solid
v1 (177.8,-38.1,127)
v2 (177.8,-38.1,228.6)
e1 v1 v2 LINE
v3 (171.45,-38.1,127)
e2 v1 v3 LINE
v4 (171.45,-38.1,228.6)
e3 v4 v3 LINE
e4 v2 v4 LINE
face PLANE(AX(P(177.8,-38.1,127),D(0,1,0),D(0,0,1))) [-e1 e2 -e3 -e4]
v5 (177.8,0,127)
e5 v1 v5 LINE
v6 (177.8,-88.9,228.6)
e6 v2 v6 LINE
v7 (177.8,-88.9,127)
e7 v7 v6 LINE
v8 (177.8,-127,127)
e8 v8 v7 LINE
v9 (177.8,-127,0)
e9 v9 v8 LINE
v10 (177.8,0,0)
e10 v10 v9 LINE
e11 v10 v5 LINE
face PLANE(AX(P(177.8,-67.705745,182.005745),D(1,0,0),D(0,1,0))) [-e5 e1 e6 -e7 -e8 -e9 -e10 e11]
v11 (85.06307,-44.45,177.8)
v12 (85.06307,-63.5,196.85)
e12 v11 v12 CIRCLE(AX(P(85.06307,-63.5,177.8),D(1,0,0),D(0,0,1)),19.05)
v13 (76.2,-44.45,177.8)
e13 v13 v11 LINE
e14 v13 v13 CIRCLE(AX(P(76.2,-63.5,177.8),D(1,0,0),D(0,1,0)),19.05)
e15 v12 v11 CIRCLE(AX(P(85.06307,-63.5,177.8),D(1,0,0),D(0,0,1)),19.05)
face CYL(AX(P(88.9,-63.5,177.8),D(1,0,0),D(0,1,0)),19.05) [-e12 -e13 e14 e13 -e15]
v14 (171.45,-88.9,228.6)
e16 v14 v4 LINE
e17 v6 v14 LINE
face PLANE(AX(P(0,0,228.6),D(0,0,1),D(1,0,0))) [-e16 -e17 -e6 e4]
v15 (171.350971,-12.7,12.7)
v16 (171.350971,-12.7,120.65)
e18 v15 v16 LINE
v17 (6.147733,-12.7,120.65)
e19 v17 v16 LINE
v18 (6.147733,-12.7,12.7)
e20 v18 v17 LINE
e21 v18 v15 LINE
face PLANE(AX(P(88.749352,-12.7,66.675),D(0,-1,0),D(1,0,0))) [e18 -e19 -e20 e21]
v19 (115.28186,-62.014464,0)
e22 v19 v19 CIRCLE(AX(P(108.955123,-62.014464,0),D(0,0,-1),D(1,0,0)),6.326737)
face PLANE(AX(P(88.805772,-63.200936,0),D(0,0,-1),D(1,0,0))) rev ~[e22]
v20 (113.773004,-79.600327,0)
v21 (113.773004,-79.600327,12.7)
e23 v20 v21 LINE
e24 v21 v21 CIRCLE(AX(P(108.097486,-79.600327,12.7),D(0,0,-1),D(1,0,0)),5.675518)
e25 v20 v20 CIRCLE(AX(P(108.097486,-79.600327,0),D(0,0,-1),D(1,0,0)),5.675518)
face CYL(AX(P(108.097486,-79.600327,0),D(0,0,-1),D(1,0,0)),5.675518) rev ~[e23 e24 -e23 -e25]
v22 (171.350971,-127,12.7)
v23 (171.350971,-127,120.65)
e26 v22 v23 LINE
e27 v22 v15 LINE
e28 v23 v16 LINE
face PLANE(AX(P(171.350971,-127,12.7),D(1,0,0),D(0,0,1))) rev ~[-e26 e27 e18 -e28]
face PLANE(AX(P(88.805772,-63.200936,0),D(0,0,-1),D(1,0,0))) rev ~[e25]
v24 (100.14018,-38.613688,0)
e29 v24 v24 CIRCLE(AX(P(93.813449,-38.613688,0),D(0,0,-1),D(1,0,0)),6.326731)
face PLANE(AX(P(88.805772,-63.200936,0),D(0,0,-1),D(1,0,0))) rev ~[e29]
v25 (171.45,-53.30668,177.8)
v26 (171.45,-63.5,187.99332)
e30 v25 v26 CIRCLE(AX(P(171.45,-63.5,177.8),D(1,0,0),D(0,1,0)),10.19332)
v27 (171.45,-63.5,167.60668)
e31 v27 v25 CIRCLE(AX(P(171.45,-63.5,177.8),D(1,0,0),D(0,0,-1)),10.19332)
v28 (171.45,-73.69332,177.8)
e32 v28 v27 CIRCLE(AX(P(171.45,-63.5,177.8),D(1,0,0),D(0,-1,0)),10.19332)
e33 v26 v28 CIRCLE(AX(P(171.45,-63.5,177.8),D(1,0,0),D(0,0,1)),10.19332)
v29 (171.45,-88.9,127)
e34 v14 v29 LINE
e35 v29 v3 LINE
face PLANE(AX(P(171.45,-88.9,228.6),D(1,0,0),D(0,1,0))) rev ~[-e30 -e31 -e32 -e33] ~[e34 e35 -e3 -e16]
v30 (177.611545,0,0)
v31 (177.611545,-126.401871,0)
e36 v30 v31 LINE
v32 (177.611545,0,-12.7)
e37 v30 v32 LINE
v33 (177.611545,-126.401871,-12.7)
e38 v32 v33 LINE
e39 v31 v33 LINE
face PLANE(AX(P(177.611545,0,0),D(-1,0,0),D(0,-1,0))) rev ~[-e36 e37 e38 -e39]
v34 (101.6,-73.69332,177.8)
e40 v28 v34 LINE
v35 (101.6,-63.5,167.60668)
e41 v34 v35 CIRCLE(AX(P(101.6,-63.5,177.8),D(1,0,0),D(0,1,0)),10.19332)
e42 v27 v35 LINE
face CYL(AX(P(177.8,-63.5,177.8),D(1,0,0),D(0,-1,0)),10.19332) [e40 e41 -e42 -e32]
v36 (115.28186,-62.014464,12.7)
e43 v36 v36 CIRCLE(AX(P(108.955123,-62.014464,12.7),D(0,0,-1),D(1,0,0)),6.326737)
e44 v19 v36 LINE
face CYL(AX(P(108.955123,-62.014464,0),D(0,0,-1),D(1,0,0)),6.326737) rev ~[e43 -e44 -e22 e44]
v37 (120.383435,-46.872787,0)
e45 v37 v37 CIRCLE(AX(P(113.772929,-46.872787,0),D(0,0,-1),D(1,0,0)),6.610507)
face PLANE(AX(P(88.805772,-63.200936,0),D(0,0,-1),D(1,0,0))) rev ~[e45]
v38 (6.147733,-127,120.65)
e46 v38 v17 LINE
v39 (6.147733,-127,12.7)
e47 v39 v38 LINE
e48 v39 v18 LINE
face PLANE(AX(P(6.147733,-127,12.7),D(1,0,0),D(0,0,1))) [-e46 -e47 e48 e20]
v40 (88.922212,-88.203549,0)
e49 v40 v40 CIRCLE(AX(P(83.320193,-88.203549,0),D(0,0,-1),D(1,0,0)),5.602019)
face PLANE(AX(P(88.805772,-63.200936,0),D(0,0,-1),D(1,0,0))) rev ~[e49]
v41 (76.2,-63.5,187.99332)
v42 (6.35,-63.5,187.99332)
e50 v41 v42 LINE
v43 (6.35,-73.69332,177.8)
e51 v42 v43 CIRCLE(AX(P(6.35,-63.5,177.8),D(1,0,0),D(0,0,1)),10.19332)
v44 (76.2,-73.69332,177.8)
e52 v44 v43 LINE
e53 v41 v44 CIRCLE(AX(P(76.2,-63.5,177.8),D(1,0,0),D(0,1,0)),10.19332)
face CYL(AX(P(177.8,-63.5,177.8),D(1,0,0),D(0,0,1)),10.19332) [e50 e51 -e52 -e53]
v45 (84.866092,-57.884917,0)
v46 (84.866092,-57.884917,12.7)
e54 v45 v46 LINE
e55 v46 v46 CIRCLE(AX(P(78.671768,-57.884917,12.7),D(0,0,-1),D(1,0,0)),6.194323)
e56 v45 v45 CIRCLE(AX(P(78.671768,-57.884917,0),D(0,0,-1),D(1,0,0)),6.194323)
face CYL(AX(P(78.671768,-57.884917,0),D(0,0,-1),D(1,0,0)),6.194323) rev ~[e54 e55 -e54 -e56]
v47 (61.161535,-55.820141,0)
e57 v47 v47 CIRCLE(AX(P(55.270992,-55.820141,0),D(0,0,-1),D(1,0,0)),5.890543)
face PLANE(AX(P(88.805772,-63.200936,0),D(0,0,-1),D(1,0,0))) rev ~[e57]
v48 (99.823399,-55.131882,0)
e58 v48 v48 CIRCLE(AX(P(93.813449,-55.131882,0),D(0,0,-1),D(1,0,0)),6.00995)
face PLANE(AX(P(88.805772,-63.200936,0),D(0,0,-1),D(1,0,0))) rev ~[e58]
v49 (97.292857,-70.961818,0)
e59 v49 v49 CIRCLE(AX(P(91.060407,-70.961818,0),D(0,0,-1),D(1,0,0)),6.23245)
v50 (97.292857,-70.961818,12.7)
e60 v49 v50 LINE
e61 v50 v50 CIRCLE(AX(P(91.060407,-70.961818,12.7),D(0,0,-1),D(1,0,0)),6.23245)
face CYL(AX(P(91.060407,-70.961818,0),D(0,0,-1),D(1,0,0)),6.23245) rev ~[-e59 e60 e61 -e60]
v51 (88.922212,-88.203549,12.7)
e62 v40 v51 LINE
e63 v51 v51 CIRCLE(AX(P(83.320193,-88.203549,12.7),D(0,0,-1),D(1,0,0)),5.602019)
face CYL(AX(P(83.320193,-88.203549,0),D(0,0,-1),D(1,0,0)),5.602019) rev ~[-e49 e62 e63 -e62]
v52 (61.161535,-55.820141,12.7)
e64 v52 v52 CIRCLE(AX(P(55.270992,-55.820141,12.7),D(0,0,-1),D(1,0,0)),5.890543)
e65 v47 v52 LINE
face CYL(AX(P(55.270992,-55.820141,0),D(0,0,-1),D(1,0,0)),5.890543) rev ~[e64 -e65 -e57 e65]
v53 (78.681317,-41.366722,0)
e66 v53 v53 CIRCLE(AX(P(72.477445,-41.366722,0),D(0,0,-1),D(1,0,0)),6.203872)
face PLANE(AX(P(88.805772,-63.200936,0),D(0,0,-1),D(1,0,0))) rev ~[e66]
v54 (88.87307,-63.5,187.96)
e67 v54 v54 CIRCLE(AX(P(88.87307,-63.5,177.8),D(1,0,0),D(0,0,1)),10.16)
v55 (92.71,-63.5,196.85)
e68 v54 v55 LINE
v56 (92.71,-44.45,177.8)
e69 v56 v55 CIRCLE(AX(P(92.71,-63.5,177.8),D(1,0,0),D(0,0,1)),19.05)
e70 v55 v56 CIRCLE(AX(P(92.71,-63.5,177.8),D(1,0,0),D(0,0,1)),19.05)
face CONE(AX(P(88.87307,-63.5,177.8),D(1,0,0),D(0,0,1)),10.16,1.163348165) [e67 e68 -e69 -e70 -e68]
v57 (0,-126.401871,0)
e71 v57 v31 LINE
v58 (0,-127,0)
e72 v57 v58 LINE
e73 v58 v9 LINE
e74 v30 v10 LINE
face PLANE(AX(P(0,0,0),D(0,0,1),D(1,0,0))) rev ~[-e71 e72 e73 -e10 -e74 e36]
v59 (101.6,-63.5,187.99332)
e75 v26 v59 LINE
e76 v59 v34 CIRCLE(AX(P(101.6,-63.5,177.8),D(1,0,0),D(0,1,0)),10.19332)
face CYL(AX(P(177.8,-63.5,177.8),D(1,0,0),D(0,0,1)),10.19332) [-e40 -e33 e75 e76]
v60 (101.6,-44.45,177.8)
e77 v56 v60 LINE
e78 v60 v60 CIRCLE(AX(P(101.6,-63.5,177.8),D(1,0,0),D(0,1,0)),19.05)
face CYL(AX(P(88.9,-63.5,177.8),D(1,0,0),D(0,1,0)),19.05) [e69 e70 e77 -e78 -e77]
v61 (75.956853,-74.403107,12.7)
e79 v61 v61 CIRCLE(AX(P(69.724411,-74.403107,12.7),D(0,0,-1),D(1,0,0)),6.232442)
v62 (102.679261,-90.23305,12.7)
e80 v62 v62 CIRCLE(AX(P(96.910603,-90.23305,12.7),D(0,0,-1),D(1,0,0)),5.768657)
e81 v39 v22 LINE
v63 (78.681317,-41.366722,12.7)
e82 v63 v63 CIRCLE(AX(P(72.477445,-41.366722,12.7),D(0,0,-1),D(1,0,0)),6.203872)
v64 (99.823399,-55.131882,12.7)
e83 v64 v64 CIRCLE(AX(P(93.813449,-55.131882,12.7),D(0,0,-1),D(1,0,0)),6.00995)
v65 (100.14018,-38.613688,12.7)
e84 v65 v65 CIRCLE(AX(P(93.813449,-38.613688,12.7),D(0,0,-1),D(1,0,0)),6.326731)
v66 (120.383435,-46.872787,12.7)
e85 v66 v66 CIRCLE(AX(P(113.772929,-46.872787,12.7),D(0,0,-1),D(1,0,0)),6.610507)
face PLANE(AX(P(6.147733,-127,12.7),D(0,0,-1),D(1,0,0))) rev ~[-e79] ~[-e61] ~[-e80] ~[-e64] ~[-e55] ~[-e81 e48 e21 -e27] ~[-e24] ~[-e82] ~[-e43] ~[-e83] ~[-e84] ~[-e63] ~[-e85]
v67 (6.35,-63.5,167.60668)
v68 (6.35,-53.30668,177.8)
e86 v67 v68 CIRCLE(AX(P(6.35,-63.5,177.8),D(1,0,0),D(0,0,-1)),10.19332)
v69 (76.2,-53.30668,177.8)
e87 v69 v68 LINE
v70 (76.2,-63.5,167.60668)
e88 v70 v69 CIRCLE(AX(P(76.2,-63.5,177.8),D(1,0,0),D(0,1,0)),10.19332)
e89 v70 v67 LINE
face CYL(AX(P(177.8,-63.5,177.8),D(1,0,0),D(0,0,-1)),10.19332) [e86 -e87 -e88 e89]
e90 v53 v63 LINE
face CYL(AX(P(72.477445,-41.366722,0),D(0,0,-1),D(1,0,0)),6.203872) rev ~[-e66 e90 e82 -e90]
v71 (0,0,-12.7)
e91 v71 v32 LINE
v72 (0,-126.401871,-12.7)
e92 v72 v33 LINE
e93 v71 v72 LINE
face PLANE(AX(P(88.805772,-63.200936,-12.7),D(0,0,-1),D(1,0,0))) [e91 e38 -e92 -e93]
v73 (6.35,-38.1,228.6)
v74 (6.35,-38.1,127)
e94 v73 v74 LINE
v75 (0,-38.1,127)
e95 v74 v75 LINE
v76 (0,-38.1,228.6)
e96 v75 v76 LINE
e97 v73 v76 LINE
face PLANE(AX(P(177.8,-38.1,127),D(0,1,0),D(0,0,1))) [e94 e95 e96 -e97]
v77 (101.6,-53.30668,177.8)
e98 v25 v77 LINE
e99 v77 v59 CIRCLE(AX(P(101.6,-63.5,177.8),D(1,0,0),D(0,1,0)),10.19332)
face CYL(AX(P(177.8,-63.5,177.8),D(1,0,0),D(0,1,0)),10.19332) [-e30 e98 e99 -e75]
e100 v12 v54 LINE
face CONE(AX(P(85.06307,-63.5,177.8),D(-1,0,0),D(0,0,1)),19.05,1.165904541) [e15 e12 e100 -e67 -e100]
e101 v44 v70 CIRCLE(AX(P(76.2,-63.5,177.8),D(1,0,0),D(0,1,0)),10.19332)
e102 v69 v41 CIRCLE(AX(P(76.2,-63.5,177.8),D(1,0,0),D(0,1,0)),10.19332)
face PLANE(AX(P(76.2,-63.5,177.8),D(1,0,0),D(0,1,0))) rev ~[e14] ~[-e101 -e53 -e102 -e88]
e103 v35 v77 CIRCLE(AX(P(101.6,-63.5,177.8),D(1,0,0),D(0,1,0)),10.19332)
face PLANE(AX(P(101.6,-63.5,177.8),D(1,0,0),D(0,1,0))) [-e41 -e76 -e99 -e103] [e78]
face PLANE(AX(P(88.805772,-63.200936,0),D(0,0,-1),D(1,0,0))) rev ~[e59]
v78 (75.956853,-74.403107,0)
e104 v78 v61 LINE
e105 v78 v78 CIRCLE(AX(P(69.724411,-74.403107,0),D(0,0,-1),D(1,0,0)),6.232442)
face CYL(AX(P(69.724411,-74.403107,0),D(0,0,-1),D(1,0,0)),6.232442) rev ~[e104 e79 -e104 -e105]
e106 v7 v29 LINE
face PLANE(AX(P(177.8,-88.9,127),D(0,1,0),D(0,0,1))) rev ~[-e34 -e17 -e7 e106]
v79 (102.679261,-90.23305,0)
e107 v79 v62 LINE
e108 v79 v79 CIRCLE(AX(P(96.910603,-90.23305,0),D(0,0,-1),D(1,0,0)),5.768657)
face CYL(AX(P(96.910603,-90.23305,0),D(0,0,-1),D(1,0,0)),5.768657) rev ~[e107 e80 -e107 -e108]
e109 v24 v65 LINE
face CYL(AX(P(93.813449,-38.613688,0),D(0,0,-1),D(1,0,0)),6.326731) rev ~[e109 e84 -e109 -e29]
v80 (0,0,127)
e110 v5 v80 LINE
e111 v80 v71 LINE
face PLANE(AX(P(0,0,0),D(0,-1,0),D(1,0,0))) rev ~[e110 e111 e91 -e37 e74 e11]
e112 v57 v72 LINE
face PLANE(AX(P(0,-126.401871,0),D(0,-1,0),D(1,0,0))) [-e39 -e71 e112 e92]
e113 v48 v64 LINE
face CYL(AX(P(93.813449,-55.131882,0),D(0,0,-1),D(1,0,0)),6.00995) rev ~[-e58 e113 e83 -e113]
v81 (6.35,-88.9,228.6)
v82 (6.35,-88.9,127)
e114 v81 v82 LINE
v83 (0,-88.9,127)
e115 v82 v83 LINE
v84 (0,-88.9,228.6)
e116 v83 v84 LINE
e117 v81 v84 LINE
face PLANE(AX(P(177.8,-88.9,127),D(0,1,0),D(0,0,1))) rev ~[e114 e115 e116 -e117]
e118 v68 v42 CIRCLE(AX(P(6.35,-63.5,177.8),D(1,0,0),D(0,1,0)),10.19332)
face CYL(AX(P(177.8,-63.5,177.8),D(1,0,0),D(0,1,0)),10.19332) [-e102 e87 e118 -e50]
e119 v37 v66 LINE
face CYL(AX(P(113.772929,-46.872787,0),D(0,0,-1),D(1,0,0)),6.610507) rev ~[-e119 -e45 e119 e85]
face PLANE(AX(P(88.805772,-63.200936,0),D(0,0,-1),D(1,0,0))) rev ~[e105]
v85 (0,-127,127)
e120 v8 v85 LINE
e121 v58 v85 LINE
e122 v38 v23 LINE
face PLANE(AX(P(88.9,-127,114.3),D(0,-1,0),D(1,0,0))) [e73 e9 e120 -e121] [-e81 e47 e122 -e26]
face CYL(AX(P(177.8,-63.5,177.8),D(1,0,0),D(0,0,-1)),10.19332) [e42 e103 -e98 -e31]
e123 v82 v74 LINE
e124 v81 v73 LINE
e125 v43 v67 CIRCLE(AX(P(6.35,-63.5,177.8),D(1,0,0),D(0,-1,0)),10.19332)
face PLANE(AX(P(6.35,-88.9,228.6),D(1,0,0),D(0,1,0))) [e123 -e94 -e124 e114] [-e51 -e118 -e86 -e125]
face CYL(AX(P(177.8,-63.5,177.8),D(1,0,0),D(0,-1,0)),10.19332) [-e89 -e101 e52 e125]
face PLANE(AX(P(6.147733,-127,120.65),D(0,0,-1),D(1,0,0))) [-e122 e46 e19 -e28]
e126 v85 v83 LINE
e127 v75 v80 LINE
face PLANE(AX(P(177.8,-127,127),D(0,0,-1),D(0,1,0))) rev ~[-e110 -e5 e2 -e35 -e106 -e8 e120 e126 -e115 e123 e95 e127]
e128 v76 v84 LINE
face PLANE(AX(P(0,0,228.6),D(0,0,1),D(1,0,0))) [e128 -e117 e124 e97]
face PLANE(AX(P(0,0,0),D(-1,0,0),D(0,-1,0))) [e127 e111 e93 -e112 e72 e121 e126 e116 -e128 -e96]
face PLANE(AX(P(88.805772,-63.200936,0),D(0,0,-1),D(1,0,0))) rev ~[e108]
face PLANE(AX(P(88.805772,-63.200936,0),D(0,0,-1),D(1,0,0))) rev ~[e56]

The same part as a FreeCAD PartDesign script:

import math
import FreeCAD as App
import Part
import Sketcher
from FreeCAD import Vector
Q = App.Units.Quantity

doc = App.newDocument("Part")
body = doc.addObject("PartDesign::Body", "Body")

# Sketch on XZ plane
sketch1 = doc.addObject("Sketcher::SketchObject", "Sketch")
body.addObject(sketch1)
sketch1.AttachmentSupport = (doc.XZ_Plane, [""])
sketch1.MapMode = "FlatFace"
sketch1.addGeometry(Part.LineSegment(Vector(0, 229, 0), Vector(0, 0, 0)), False)
sketch1.addGeometry(Part.LineSegment(Vector(0, 0, 0), Vector(178, 0, 0)), False)
sketch1.addGeometry(Part.LineSegment(Vector(178, 0, 0), Vector(178, 229, 0)), False)
sketch1.addGeometry(Part.LineSegment(Vector(178, 229, 0), Vector(0, 229, 0)), False)
sketch1.addConstraint(Sketcher.Constraint("Coincident", 0, 2, 1, 1))
sketch1.addConstraint(Sketcher.Constraint("Coincident", 1, 2, 2, 1))
sketch1.addConstraint(Sketcher.Constraint("Coincident", 2, 2, 3, 1))
sketch1.addConstraint(Sketcher.Constraint("Coincident", 3, 2, 0, 1))
sketch1.addConstraint(Sketcher.Constraint("Vertical", 0))
sketch1.addConstraint(Sketcher.Constraint("Horizontal", 1))
sketch1.addConstraint(Sketcher.Constraint("Vertical", 2))
sketch1.addConstraint(Sketcher.Constraint("Horizontal", 3))
sketch1.addConstraint(Sketcher.Constraint("Coincident", 0, 2, -1, 1))
sketch1.addConstraint(Sketcher.Constraint("DistanceX", 1, 1, 1, 2, Q("7 in")))
sketch1.addConstraint(Sketcher.Constraint("DistanceY", 0, 2, 0, 1, Q("9 in")))
pad1 = doc.addObject("PartDesign::Pad", "Pad")
body.addObject(pad1)
pad1.Profile = sketch1
pad1.Length = Q("5 in")

# Sketch on YZ plane
sketch2 = doc.addObject("Sketcher::SketchObject", "Sketch001")
body.addObject(sketch2)
sketch2.AttachmentSupport = (doc.YZ_Plane, [""])
sketch2.MapMode = "FlatFace"
sketch2.AttachmentOffset = App.Placement(Vector(0, 0, 7 * 25.4), App.Rotation())
sketch2.addGeometry(Part.LineSegment(Vector(-127, 229, 0), Vector(-127, 127, 0)), False)
sketch2.addGeometry(Part.LineSegment(Vector(-127, 127, 0), Vector(-89, 127, 0)), False)
sketch2.addGeometry(Part.LineSegment(Vector(-89, 127, 0), Vector(-89, 229, 0)), False)
sketch2.addGeometry(Part.LineSegment(Vector(-89, 229, 0), Vector(-127, 229, 0)), False)
sketch2.addConstraint(Sketcher.Constraint("Coincident", 0, 2, 1, 1))
sketch2.addConstraint(Sketcher.Constraint("Coincident", 1, 2, 2, 1))
sketch2.addConstraint(Sketcher.Constraint("Coincident", 2, 2, 3, 1))
sketch2.addConstraint(Sketcher.Constraint("Coincident", 3, 2, 0, 1))
sketch2.addConstraint(Sketcher.Constraint("Vertical", 0))
sketch2.addConstraint(Sketcher.Constraint("Horizontal", 1))
sketch2.addConstraint(Sketcher.Constraint("Vertical", 2))
sketch2.addConstraint(Sketcher.Constraint("Horizontal", 3))
sketch2.addConstraint(Sketcher.Constraint("DistanceY", 0, 2, 0, 1, Q("4 in")))
sketch2.addConstraint(Sketcher.Constraint("DistanceX", 1, 1, 1, 2, Q("1.5 in")))
sketch2.addConstraint(Sketcher.Constraint("DistanceX", 0, 2, -1, 1, Q("5 in")))
sketch2.addConstraint(Sketcher.Constraint("DistanceY", -1, 1, 0, 2, Q("5 in")))
pocket1 = doc.addObject("PartDesign::Pocket", "Pocket")
body.addObject(pocket1)
pocket1.Profile = sketch2
pocket1.Length = Q("7 in")

# Sketch on YZ plane
sketch3 = doc.addObject("Sketcher::SketchObject", "Sketch002")
body.addObject(sketch3)
sketch3.AttachmentSupport = (doc.YZ_Plane, [""])
sketch3.MapMode = "FlatFace"
sketch3.AttachmentOffset = App.Placement(Vector(0, 0, 7 * 25.4), App.Rotation())
sketch3.addGeometry(Part.LineSegment(Vector(-38, 229, 0), Vector(-38, 127, 0)), False)
sketch3.addGeometry(Part.LineSegment(Vector(-38, 127, 0), Vector(0, 127, 0)), False)
sketch3.addGeometry(Part.LineSegment(Vector(0, 127, 0), Vector(0, 229, 0)), False)
sketch3.addGeometry(Part.LineSegment(Vector(0, 229, 0), Vector(-38, 229, 0)), False)
sketch3.addConstraint(Sketcher.Constraint("Coincident", 0, 2, 1, 1))
sketch3.addConstraint(Sketcher.Constraint("Coincident", 1, 2, 2, 1))
sketch3.addConstraint(Sketcher.Constraint("Coincident", 2, 2, 3, 1))
sketch3.addConstraint(Sketcher.Constraint("Coincident", 3, 2, 0, 1))
sketch3.addConstraint(Sketcher.Constraint("Vertical", 0))
sketch3.addConstraint(Sketcher.Constraint("Horizontal", 1))
sketch3.addConstraint(Sketcher.Constraint("Vertical", 2))
sketch3.addConstraint(Sketcher.Constraint("Horizontal", 3))
sketch3.addConstraint(Sketcher.Constraint("PointOnObject", 1, 2, -2))
sketch3.addConstraint(Sketcher.Constraint("DistanceY", 0, 2, 0, 1, Q("4 in")))
sketch3.addConstraint(Sketcher.Constraint("DistanceX", 1, 1, 1, 2, Q("1.5 in")))
sketch3.addConstraint(Sketcher.Constraint("DistanceY", -1, 1, 0, 2, Q("5 in")))
pocket2 = doc.addObject("PartDesign::Pocket", "Pocket001")
body.addObject(pocket2)
pocket2.Profile = sketch3
pocket2.Length = Q("7 in")

# Sketch on YZ plane
sketch4 = doc.addObject("Sketcher::SketchObject", "Sketch003")
body.addObject(sketch4)
sketch4.AttachmentSupport = (doc.YZ_Plane, [""])
sketch4.MapMode = "FlatFace"
sketch4.addGeometry(Part.Circle(Vector(-61, 211, 0), Vector(0, 0, 1), 6), False)
sketch4.addConstraint(Sketcher.Constraint("Diameter", 0, Q("12.398503 mm")))
sketch4.addConstraint(Sketcher.Constraint("DistanceY", -1, 1, 0, 3, Q("211.223021 mm")))
sketch4.addConstraint(Sketcher.Constraint("DistanceX", 0, 3, -1, 1, Q("61.070204 mm")))
pad2 = doc.addObject("PartDesign::Pad", "Pad001")
body.addObject(pad2)
pad2.Profile = sketch4
pad2.Length = Q("7 in")

# Sketch on XY plane
sketch5 = doc.addObject("Sketcher::SketchObject", "Sketch004")
body.addObject(sketch5)
sketch5.AttachmentSupport = (doc.XY_Plane, [""])
sketch5.MapMode = "FlatFace"
sketch5.AttachmentOffset = App.Placement(Vector(0, 0, 9 * 25.4), App.Rotation())
sketch5.addGeometry(Part.LineSegment(Vector(6, -38, 0), Vector(6, -89, 0)), False)
sketch5.addGeometry(Part.LineSegment(Vector(6, -89, 0), Vector(171, -89, 0)), False)
sketch5.addGeometry(Part.LineSegment(Vector(171, -89, 0), Vector(171, -38, 0)), False)
sketch5.addGeometry(Part.LineSegment(Vector(171, -38, 0), Vector(6, -38, 0)), False)
sketch5.addConstraint(Sketcher.Constraint("Coincident", 0, 2, 1, 1))
sketch5.addConstraint(Sketcher.Constraint("Coincident", 1, 2, 2, 1))
sketch5.addConstraint(Sketcher.Constraint("Coincident", 2, 2, 3, 1))
sketch5.addConstraint(Sketcher.Constraint("Coincident", 3, 2, 0, 1))
sketch5.addConstraint(Sketcher.Constraint("Vertical", 0))
sketch5.addConstraint(Sketcher.Constraint("Horizontal", 1))
sketch5.addConstraint(Sketcher.Constraint("Vertical", 2))
sketch5.addConstraint(Sketcher.Constraint("Horizontal", 3))
sketch5.addConstraint(Sketcher.Constraint("DistanceY", 0, 2, 0, 1, Q("2 in")))
sketch5.addConstraint(Sketcher.Constraint("DistanceX", 1, 1, 1, 2, Q("6.5 in")))
sketch5.addConstraint(Sketcher.Constraint("DistanceY", 0, 2, -1, 1, Q("3.5 in")))
sketch5.addConstraint(Sketcher.Constraint("DistanceX", -1, 1, 0, 2, Q("0.25 in")))
pocket3 = doc.addObject("PartDesign::Pocket", "Pocket002")
body.addObject(pocket3)
pocket3.Profile = sketch5
pocket3.Length = Q("4 in")

# Sketch on YZ plane
sketch6 = doc.addObject("Sketcher::SketchObject", "Sketch005")
body.addObject(sketch6)
sketch6.AttachmentSupport = (doc.YZ_Plane, [""])
sketch6.MapMode = "FlatFace"
sketch6.AttachmentOffset = App.Placement(Vector(0, 0, 7 * 25.4), App.Rotation())
sketch6.addGeometry(Part.ArcOfCircle(Part.Circle(Vector(-64, 178, 0), Vector(0, 0, 1), 10), math.radians(90), math.radians(180)), False)
sketch6.addGeometry(Part.ArcOfCircle(Part.Circle(Vector(-64, 178, 0), Vector(0, 0, 1), 10), math.radians(180), math.radians(270)), False)
sketch6.addGeometry(Part.ArcOfCircle(Part.Circle(Vector(-64, 178, 0), Vector(0, 0, 1), 10), math.radians(-90), math.radians(0)), False)
sketch6.addGeometry(Part.ArcOfCircle(Part.Circle(Vector(-64, 178, 0), Vector(0, 0, 1), 10), math.radians(0), math.radians(90)), False)
sketch6.addConstraint(Sketcher.Constraint("Tangent", 0, 2, 1, 1))
sketch6.addConstraint(Sketcher.Constraint("Tangent", 1, 2, 2, 1))
sketch6.addConstraint(Sketcher.Constraint("Tangent", 2, 2, 3, 1))
sketch6.addConstraint(Sketcher.Constraint("Tangent", 3, 2, 0, 1))
sketch6.addConstraint(Sketcher.Constraint("Equal", 0, 1))
sketch6.addConstraint(Sketcher.Constraint("Horizontal", 3, 3, 0, 2))
sketch6.addConstraint(Sketcher.Constraint("Horizontal", 0, 2, 2, 2))
sketch6.addConstraint(Sketcher.Constraint("Vertical", 3, 3, 1, 2))
sketch6.addConstraint(Sketcher.Constraint("Vertical", 1, 2, 3, 2))
sketch6.addConstraint(Sketcher.Constraint("DistanceY", -1, 1, 0, 3, Q("7 in")))
sketch6.addConstraint(Sketcher.Constraint("DistanceX", 0, 3, -1, 1, Q("2.5 in")))
sketch6.addConstraint(Sketcher.Constraint("Radius", 0, Q("10.19332 mm")))
pad3 = doc.addObject("PartDesign::Pad", "Pad002")
body.addObject(pad3)
pad3.Profile = sketch6
pad3.Length = Q("6.87 in")
pad3.Reversed = True

# Sketch on XZ plane
sketch7 = doc.addObject("Sketcher::SketchObject", "Sketch006")
body.addObject(sketch7)
sketch7.AttachmentSupport = (doc.XZ_Plane, [""])
sketch7.MapMode = "FlatFace"
sketch7.AttachmentOffset = App.Placement(Vector(0, 0, 5 * 25.4), App.Rotation())
sketch7.addGeometry(Part.LineSegment(Vector(6, 121, 0), Vector(6, 13, 0)), False)
sketch7.addGeometry(Part.LineSegment(Vector(6, 13, 0), Vector(171, 13, 0)), False)
sketch7.addGeometry(Part.LineSegment(Vector(171, 13, 0), Vector(171, 121, 0)), False)
sketch7.addGeometry(Part.LineSegment(Vector(171, 121, 0), Vector(6, 121, 0)), False)
sketch7.addConstraint(Sketcher.Constraint("Coincident", 0, 2, 1, 1))
sketch7.addConstraint(Sketcher.Constraint("Coincident", 1, 2, 2, 1))
sketch7.addConstraint(Sketcher.Constraint("Coincident", 2, 2, 3, 1))
sketch7.addConstraint(Sketcher.Constraint("Coincident", 3, 2, 0, 1))
sketch7.addConstraint(Sketcher.Constraint("Vertical", 0))
sketch7.addConstraint(Sketcher.Constraint("Horizontal", 1))
sketch7.addConstraint(Sketcher.Constraint("Vertical", 2))
sketch7.addConstraint(Sketcher.Constraint("Horizontal", 3))
sketch7.addConstraint(Sketcher.Constraint("DistanceY", 0, 2, 0, 1, Q("4.25 in")))
sketch7.addConstraint(Sketcher.Constraint("DistanceY", -1, 1, 0, 2, Q("0.5 in")))
sketch7.addConstraint(Sketcher.Constraint("DistanceX", 1, 1, 1, 2, Q("165.203237 mm")))
sketch7.addConstraint(Sketcher.Constraint("DistanceX", -1, 1, 1, 2, Q("171.350971 mm")))
pocket4 = doc.addObject("PartDesign::Pocket", "Pocket003")
body.addObject(pocket4)
pocket4.Profile = sketch7
pocket4.Length = Q("4.5 in")

# Sketch on XY plane
sketch8 = doc.addObject("Sketcher::SketchObject", "Sketch007")
body.addObject(sketch8)
sketch8.AttachmentSupport = (doc.XY_Plane, [""])
sketch8.MapMode = "FlatFace"
sketch8.addGeometry(Part.Circle(Vector(83, -88, 0), Vector(0, 0, 1), 6), False)
sketch8.addConstraint(Sketcher.Constraint("Diameter", 0, Q("11.204038 mm")))
sketch8.addConstraint(Sketcher.Constraint("DistanceY", 0, 3, -1, 1, Q("88.203549 mm")))
sketch8.addConstraint(Sketcher.Constraint("DistanceX", -1, 1, 0, 3, Q("83.320193 mm")))
pocket5 = doc.addObject("PartDesign::Pocket", "Pocket004")
body.addObject(pocket5)
pocket5.Profile = sketch8
pocket5.Length = Q("1 in")
pocket5.Reversed = True

# Sketch on XY plane
sketch9 = doc.addObject("Sketcher::SketchObject", "Sketch008")
body.addObject(sketch9)
sketch9.AttachmentSupport = (doc.XY_Plane, [""])
sketch9.MapMode = "FlatFace"
sketch9.addGeometry(Part.Circle(Vector(108, -80, 0), Vector(0, 0, 1), 6), False)
sketch9.addConstraint(Sketcher.Constraint("Diameter", 0, Q("11.351036 mm")))
sketch9.addConstraint(Sketcher.Constraint("DistanceX", -1, 1, 0, 3, Q("108.097486 mm")))
sketch9.addConstraint(Sketcher.Constraint("DistanceY", 0, 3, -1, 1, Q("79.600327 mm")))
pocket6 = doc.addObject("PartDesign::Pocket", "Pocket005")
body.addObject(pocket6)
pocket6.Profile = sketch9
pocket6.Length = Q("1 in")
pocket6.Reversed = True

# Sketch on XY plane
sketch10 = doc.addObject("Sketcher::SketchObject", "Sketch009")
body.addObject(sketch10)
sketch10.AttachmentSupport = (doc.XY_Plane, [""])
sketch10.MapMode = "FlatFace"
sketch10.addGeometry(Part.Circle(Vector(91, -71, 0), Vector(0, 0, 1), 6), False)
sketch10.addConstraint(Sketcher.Constraint("Diameter", 0, Q("12.464899 mm")))
sketch10.addConstraint(Sketcher.Constraint("DistanceY", 0, 3, -1, 1, Q("70.961818 mm")))
sketch10.addConstraint(Sketcher.Constraint("DistanceX", -1, 1, 0, 3, Q("91.060407 mm")))
pocket7 = doc.addObject("PartDesign::Pocket", "Pocket006")
body.addObject(pocket7)
pocket7.Profile = sketch10
pocket7.Length = Q("1 in")
pocket7.Reversed = True

# Sketch on XY plane
sketch11 = doc.addObject("Sketcher::SketchObject", "Sketch010")
body.addObject(sketch11)
sketch11.AttachmentSupport = (doc.XY_Plane, [""])
sketch11.MapMode = "FlatFace"
sketch11.addGeometry(Part.Circle(Vector(70, -74, 0), Vector(0, 0, 1), 6), False)
sketch11.addConstraint(Sketcher.Constraint("Diameter", 0, Q("12.464884 mm")))
sketch11.addConstraint(Sketcher.Constraint("DistanceX", -1, 1, 0, 3, Q("69.724411 mm")))
sketch11.addConstraint(Sketcher.Constraint("DistanceY", 0, 3, -1, 1, Q("74.403107 mm")))
pocket8 = doc.addObject("PartDesign::Pocket", "Pocket007")
body.addObject(pocket8)
pocket8.Profile = sketch11
pocket8.Length = Q("1 in")
pocket8.Reversed = True

# Sketch on XY plane
sketch12 = doc.addObject("Sketcher::SketchObject", "Sketch011")
body.addObject(sketch12)
sketch12.AttachmentSupport = (doc.XY_Plane, [""])
sketch12.MapMode = "FlatFace"
sketch12.addGeometry(Part.Circle(Vector(79, -58, 0), Vector(0, 0, 1), 6), False)
sketch12.addConstraint(Sketcher.Constraint("Diameter", 0, Q("12.388647 mm")))
sketch12.addConstraint(Sketcher.Constraint("DistanceX", -1, 1, 0, 3, Q("78.671768 mm")))
sketch12.addConstraint(Sketcher.Constraint("DistanceY", 0, 3, -1, 1, Q("57.884917 mm")))
pocket9 = doc.addObject("PartDesign::Pocket", "Pocket008")
body.addObject(pocket9)
pocket9.Profile = sketch12
pocket9.Length = Q("1 in")
pocket9.Reversed = True

# Sketch on XY plane
sketch13 = doc.addObject("Sketcher::SketchObject", "Sketch012")
body.addObject(sketch13)
sketch13.AttachmentSupport = (doc.XY_Plane, [""])
sketch13.MapMode = "FlatFace"
sketch13.addGeometry(Part.Circle(Vector(109, -62, 0), Vector(0, 0, 1), 6), False)
sketch13.addConstraint(Sketcher.Constraint("Diameter", 0, Q("12.653475 mm")))
sketch13.addConstraint(Sketcher.Constraint("DistanceX", -1, 1, 0, 3, Q("108.955123 mm")))
sketch13.addConstraint(Sketcher.Constraint("DistanceY", 0, 3, -1, 1, Q("62.014464 mm")))
pocket10 = doc.addObject("PartDesign::Pocket", "Pocket009")
body.addObject(pocket10)
pocket10.Profile = sketch13
pocket10.Length = Q("1 in")
pocket10.Reversed = True

# Sketch on XY plane
sketch14 = doc.addObject("Sketcher::SketchObject", "Sketch013")
body.addObject(sketch14)
sketch14.AttachmentSupport = (doc.XY_Plane, [""])
sketch14.MapMode = "FlatFace"
sketch14.addGeometry(Part.Circle(Vector(97, -90, 0), Vector(0, 0, 1), 6), False)
sketch14.addConstraint(Sketcher.Constraint("Diameter", 0, Q("11.537315 mm")))
sketch14.addConstraint(Sketcher.Constraint("DistanceY", 0, 3, -1, 1, Q("90.23305 mm")))
sketch14.addConstraint(Sketcher.Constraint("DistanceX", -1, 1, 0, 3, Q("96.910603 mm")))
pocket11 = doc.addObject("PartDesign::Pocket", "Pocket010")
body.addObject(pocket11)
pocket11.Profile = sketch14
pocket11.Length = Q("1 in")
pocket11.Reversed = True

# Sketch on XY plane
sketch15 = doc.addObject("Sketcher::SketchObject", "Sketch014")
body.addObject(sketch15)
sketch15.AttachmentSupport = (doc.XY_Plane, [""])
sketch15.MapMode = "FlatFace"
sketch15.addGeometry(Part.Circle(Vector(94, -55, 0), Vector(0, 0, 1), 6), False)
sketch15.addConstraint(Sketcher.Constraint("Diameter", 0, Q("12.019899 mm")))
sketch15.addConstraint(Sketcher.Constraint("DistanceX", -1, 1, 0, 3, Q("93.813449 mm")))
sketch15.addConstraint(Sketcher.Constraint("DistanceY", 0, 3, -1, 1, Q("55.131882 mm")))
pocket12 = doc.addObject("PartDesign::Pocket", "Pocket011")
body.addObject(pocket12)
pocket12.Profile = sketch15
pocket12.Length = Q("1 in")
pocket12.Reversed = True

# Sketch on XY plane
sketch16 = doc.addObject("Sketcher::SketchObject", "Sketch015")
body.addObject(sketch16)
sketch16.AttachmentSupport = (doc.XY_Plane, [""])
sketch16.MapMode = "FlatFace"
sketch16.addGeometry(Part.Circle(Vector(55, -56, 0), Vector(0, 0, 1), 6), False)
sketch16.addConstraint(Sketcher.Constraint("Diameter", 0, Q("11.781085 mm")))
sketch16.addConstraint(Sketcher.Constraint("DistanceY", 0, 3, -1, 1, Q("55.820141 mm")))
sketch16.addConstraint(Sketcher.Constraint("DistanceX", -1, 1, 0, 3, Q("55.270992 mm")))
pocket13 = doc.addObject("PartDesign::Pocket", "Pocket012")
body.addObject(pocket13)
pocket13.Profile = sketch16
pocket13.Length = Q("1 in")
pocket13.Reversed = True

# Sketch on XY plane
sketch17 = doc.addObject("Sketcher::SketchObject", "Sketch016")
body.addObject(sketch17)
sketch17.AttachmentSupport = (doc.XY_Plane, [""])
sketch17.MapMode = "FlatFace"
sketch17.addGeometry(Part.Circle(Vector(72, -41, 0), Vector(0, 0, 1), 6), False)
sketch17.addConstraint(Sketcher.Constraint("Diameter", 0, Q("12.407744 mm")))
sketch17.addConstraint(Sketcher.Constraint("DistanceX", -1, 1, 0, 3, Q("72.477445 mm")))
sketch17.addConstraint(Sketcher.Constraint("DistanceY", 0, 3, -1, 1, Q("41.366722 mm")))
pocket14 = doc.addObject("PartDesign::Pocket", "Pocket013")
body.addObject(pocket14)
pocket14.Profile = sketch17
pocket14.Length = Q("1 in")
pocket14.Reversed = True

# Sketch on XY plane
sketch18 = doc.addObject("Sketcher::SketchObject", "Sketch017")
body.addObject(sketch18)
sketch18.AttachmentSupport = (doc.XY_Plane, [""])
sketch18.MapMode = "FlatFace"
sketch18.addGeometry(Part.Circle(Vector(94, -39, 0), Vector(0, 0, 1), 6), False)
sketch18.addConstraint(Sketcher.Constraint("Diameter", 0, Q("12.653461 mm")))
sketch18.addConstraint(Sketcher.Constraint("DistanceX", -1, 1, 0, 3, Q("93.813449 mm")))
sketch18.addConstraint(Sketcher.Constraint("DistanceY", 0, 3, -1, 1, Q("38.613688 mm")))
pocket15 = doc.addObject("PartDesign::Pocket", "Pocket014")
body.addObject(pocket15)
pocket15.Profile = sketch18
pocket15.Length = Q("1 in")
pocket15.Reversed = True

# Sketch on XY plane
sketch19 = doc.addObject("Sketcher::SketchObject", "Sketch018")
body.addObject(sketch19)
sketch19.AttachmentSupport = (doc.XY_Plane, [""])
sketch19.MapMode = "FlatFace"
sketch19.addGeometry(Part.Circle(Vector(114, -47, 0), Vector(0, 0, 1), 7), False)
sketch19.addConstraint(Sketcher.Constraint("Diameter", 0, Q("13.221013 mm")))
sketch19.addConstraint(Sketcher.Constraint("DistanceX", -1, 1, 0, 3, Q("113.772929 mm")))
sketch19.addConstraint(Sketcher.Constraint("DistanceY", 0, 3, -1, 1, Q("46.872787 mm")))
pocket16 = doc.addObject("PartDesign::Pocket", "Pocket015")
body.addObject(pocket16)
pocket16.Profile = sketch19
pocket16.Length = Q("1 in")
pocket16.Reversed = True

# Sketch on YZ plane
sketch20 = doc.addObject("Sketcher::SketchObject", "Sketch019")
body.addObject(sketch20)
sketch20.AttachmentSupport = (doc.YZ_Plane, [""])
sketch20.MapMode = "FlatFace"
sketch20.AttachmentOffset = App.Placement(Vector(0, 0, 3.5 * 25.4), App.Rotation())
sketch20.addGeometry(Part.Circle(Vector(-64, 178, 0), Vector(0, 0, 1), 19), False)
sketch20.addGeometry(Part.Circle(Vector(-64, 178, 0), Vector(0, 0, 1), 10), False)
sketch20.addConstraint(Sketcher.Constraint("Coincident", 1, 3, 0, 3))
sketch20.addConstraint(Sketcher.Constraint("Diameter", 0, Q("1.5 in")))
sketch20.addConstraint(Sketcher.Constraint("DistanceY", -1, 1, 0, 3, Q("7 in")))
sketch20.addConstraint(Sketcher.Constraint("DistanceX", 0, 3, -1, 1, Q("2.5 in")))
sketch20.addConstraint(Sketcher.Constraint("Diameter", 1, Q("20.386641 mm")))
pad4 = doc.addObject("PartDesign::Pad", "Pad003")
body.addObject(pad4)
pad4.Profile = sketch20
pad4.Length = Q("1 in")
pad4.Midplane = True

# Sketch on XY plane
sketch21 = doc.addObject("Sketcher::SketchObject", "Sketch020")
body.addObject(sketch21)
sketch21.AttachmentSupport = (doc.XY_Plane, [""])
sketch21.MapMode = "FlatFace"
sketch21.addGeometry(Part.LineSegment(Vector(0, -126, 0), Vector(0, 0, 0)), False)
sketch21.addGeometry(Part.LineSegment(Vector(0, 0, 0), Vector(178, 0, 0)), False)
sketch21.addGeometry(Part.LineSegment(Vector(178, 0, 0), Vector(178, -126, 0)), False)
sketch21.addGeometry(Part.LineSegment(Vector(178, -126, 0), Vector(0, -126, 0)), False)
sketch21.addConstraint(Sketcher.Constraint("Coincident", 0, 2, 1, 1))
sketch21.addConstraint(Sketcher.Constraint("Coincident", 1, 2, 2, 1))
sketch21.addConstraint(Sketcher.Constraint("Coincident", 2, 2, 3, 1))
sketch21.addConstraint(Sketcher.Constraint("Coincident", 3, 2, 0, 1))
sketch21.addConstraint(Sketcher.Constraint("Vertical", 0))
sketch21.addConstraint(Sketcher.Constraint("Horizontal", 1))
sketch21.addConstraint(Sketcher.Constraint("Vertical", 2))
sketch21.addConstraint(Sketcher.Constraint("Horizontal", 3))
sketch21.addConstraint(Sketcher.Constraint("Coincident", 0, 2, -1, 1))
sketch21.addConstraint(Sketcher.Constraint("DistanceY", 0, 1, 0, 2, Q("126.401871 mm")))
sketch21.addConstraint(Sketcher.Constraint("DistanceX", 1, 1, 1, 2, Q("177.611545 mm")))
pad5 = doc.addObject("PartDesign::Pad", "Pad004")
body.addObject(pad5)
pad5.Profile = sketch21
pad5.Length = Q("0.5 in")
pad5.Reversed = True

# Sketch on XZ plane
sketch22 = doc.addObject("Sketcher::SketchObject", "Sketch021")
body.addObject(sketch22)
sketch22.AttachmentSupport = (doc.XZ_Plane, [""])
sketch22.MapMode = "FlatFace"
sketch22.AttachmentOffset = App.Placement(Vector(0, 0, 2.5 * 25.4), App.Rotation())
sketch22.addGeometry(Part.LineSegment(Vector(89, 188, 0), Vector(93, 197, 0)), False)
sketch22.addGeometry(Part.LineSegment(Vector(93, 197, 0), Vector(85, 197, 0)), False)
sketch22.addGeometry(Part.LineSegment(Vector(85, 197, 0), Vector(89, 188, 0)), False)
sketch22.addGeometry(Part.LineSegment(Vector(85, 178, 0), Vector(93, 178, 0)), True)  # axis
sketch22.addConstraint(Sketcher.Constraint("Coincident", 0, 2, 1, 1))
sketch22.addConstraint(Sketcher.Constraint("Coincident", 1, 2, 2, 1))
sketch22.addConstraint(Sketcher.Constraint("Coincident", 2, 2, 0, 1))
sketch22.addConstraint(Sketcher.Constraint("Horizontal", 1))
sketch22.addConstraint(Sketcher.Constraint("Horizontal", 3))
sketch22.addConstraint(Sketcher.Constraint("Vertical", 1, 2, 3, 1))
sketch22.addConstraint(Sketcher.Constraint("Vertical", 0, 2, 3, 2))
sketch22.addConstraint(Sketcher.Constraint("DistanceY", -1, 1, 3, 1, Q("7 in")))
sketch22.addConstraint(Sketcher.Constraint("DistanceY", -1, 1, 2, 2, Q("7.4 in")))
sketch22.addConstraint(Sketcher.Constraint("DistanceX", -1, 1, 0, 2, Q("3.65 in")))
sketch22.addConstraint(Sketcher.Constraint("DistanceY", -1, 1, 0, 2, Q("7.75 in")))
sketch22.addConstraint(Sketcher.Constraint("DistanceX", 1, 2, 2, 2, Q("0.15 in")))
sketch22.addConstraint(Sketcher.Constraint("DistanceX", 1, 2, 1, 1, Q("7.64693 mm")))
groove = doc.addObject("PartDesign::Groove", "Groove")
body.addObject(groove)
groove.Profile = sketch22
groove.ReferenceAxis = (sketch22, ["Axis0"])
groove.Angle = 360

doc.recompute()
